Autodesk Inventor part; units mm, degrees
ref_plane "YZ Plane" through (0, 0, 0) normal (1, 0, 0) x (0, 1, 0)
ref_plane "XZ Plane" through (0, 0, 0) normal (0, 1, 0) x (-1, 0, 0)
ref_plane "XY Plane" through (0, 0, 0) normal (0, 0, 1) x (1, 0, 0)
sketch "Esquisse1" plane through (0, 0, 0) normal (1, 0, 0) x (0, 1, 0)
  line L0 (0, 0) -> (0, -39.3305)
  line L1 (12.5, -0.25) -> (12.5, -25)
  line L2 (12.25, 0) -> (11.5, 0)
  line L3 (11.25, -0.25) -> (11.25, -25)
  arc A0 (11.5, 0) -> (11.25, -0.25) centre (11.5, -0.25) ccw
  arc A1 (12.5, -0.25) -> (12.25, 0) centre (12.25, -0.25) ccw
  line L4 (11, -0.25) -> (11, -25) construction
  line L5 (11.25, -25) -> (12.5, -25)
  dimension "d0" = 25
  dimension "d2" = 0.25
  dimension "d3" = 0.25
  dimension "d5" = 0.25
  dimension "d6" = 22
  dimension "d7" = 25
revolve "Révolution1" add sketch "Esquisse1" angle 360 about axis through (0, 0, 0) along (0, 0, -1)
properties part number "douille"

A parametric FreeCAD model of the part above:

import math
import FreeCAD as App
import Part
import Sketcher
from FreeCAD import Vector
Q = App.Units.Quantity

doc = App.newDocument("Part")
body = doc.addObject("PartDesign::Body", "Body")

sketch1 = doc.addObject("Sketcher::SketchObject", "Sketch")
body.addObject(sketch1)
sketch1.AttachmentSupport = (doc.YZ_Plane, [""])
sketch1.MapMode = "FlatFace"
sketch1.addGeometry([
    Part.LineSegment(Vector(12.5, -25, 0), Vector(12.5, -0.25, 0)),
    Part.ArcOfCircle(Part.Circle(Vector(12.25, -0.25, 0), Vector(0, 0, 1), 0.25), math.radians(0), math.radians(90)),
    Part.LineSegment(Vector(12.25, 0, 0), Vector(11.5, 0, 0)),
    Part.ArcOfCircle(Part.Circle(Vector(11.5, -0.25, 0), Vector(0, 0, 1), 0.25), math.radians(90), math.radians(180)),
    Part.LineSegment(Vector(11.25, -0.25, 0), Vector(11.25, -25, 0)),
    Part.LineSegment(Vector(11.25, -25, 0), Vector(12.5, -25, 0)),
], False)
sketch1.addConstraint([
    Sketcher.Constraint("Tangent", 0, 2, 1, 1),
    Sketcher.Constraint("Tangent", 1, 2, 2, 1),
    Sketcher.Constraint("Tangent", 2, 2, 3, 1),
    Sketcher.Constraint("Tangent", 3, 2, 4, 1),
    Sketcher.Constraint("Coincident", 4, 2, 5, 1),
    Sketcher.Constraint("Coincident", 5, 2, 0, 1),
    Sketcher.Constraint("Vertical", 0),
    Sketcher.Constraint("Horizontal", 2),
    Sketcher.Constraint("Vertical", 4),
    Sketcher.Constraint("Horizontal", 5),
    Sketcher.Constraint("Equal", 1, 3),
    Sketcher.Constraint("PointOnObject", 1, 2, -1),
    Sketcher.Constraint("Radius", 1, Q("0.25 mm")),
    Sketcher.Constraint("DistanceY", 4, 2, -1, 1, Q("25 mm")),
    Sketcher.Constraint("DistanceX", 3, 3, 0, 2, Q("1 mm")),
    Sketcher.Constraint("DistanceX", -1, 1, 3, 3, Q("11.5 mm")),
])
revolution = doc.addObject("PartDesign::Revolution", "Revolution")
body.addObject(revolution)
revolution.Profile = sketch1
revolution.ReferenceAxis = (sketch1, ["V_Axis"])
revolution.Angle = 360

doc.recompute()
